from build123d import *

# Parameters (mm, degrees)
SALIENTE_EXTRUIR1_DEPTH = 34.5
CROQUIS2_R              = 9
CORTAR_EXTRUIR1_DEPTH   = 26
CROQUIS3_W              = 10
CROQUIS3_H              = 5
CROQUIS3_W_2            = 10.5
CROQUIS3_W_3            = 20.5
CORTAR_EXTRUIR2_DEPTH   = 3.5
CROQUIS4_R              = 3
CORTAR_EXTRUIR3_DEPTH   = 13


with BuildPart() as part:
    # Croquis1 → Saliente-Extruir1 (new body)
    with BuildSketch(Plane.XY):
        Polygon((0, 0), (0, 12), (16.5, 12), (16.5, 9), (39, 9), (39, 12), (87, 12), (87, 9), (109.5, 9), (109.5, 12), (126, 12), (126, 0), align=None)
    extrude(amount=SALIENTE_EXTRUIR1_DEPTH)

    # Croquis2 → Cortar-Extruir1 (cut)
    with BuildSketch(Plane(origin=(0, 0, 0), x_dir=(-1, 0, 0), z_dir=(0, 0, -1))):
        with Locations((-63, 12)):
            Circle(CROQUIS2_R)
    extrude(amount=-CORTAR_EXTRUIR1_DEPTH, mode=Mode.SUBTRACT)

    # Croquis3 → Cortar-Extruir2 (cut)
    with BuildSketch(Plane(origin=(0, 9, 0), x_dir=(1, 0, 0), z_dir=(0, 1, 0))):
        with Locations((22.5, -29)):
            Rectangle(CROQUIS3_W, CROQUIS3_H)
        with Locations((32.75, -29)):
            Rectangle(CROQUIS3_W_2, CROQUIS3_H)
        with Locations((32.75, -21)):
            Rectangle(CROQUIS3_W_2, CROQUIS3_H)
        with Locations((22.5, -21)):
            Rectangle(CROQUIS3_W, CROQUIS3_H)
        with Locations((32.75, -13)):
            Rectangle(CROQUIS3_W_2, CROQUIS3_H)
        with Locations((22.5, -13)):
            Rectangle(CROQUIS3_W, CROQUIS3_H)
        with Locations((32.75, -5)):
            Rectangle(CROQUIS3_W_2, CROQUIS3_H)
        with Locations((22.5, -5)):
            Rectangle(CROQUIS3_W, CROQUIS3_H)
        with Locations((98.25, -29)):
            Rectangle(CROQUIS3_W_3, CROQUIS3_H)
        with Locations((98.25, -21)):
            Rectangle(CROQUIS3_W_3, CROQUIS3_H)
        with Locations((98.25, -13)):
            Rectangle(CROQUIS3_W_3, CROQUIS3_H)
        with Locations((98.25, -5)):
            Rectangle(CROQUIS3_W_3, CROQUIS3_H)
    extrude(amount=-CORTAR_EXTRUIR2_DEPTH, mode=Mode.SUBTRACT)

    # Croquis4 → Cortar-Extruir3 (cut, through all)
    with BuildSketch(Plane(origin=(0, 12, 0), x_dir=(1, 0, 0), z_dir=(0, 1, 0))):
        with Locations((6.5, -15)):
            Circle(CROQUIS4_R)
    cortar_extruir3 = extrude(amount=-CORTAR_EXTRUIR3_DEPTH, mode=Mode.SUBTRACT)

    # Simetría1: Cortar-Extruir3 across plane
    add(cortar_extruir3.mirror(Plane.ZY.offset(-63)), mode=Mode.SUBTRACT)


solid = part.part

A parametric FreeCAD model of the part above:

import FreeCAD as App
import Part
import Sketcher

V = App.Vector
Q = App.Units.Quantity

doc = App.newDocument("Part")
body = doc.addObject("PartDesign::Body", "Body")

# Sketch on XY plane
sketch1 = body.newObject("Sketcher::SketchObject", "Sketch")
sketch1.AttachmentSupport = (doc.getObject("XY_Plane"), [""])
sketch1.MapMode = "FlatFace"
sketch1.addGeometry(Part.LineSegment(V(0, 12, 0), V(0, 0, 0)), False)
sketch1.addGeometry(Part.LineSegment(V(0, 0, 0), V(126, 0, 0)), False)
sketch1.addGeometry(Part.LineSegment(V(126, 0, 0), V(126, 12, 0)), False)
sketch1.addGeometry(Part.LineSegment(V(126, 12, 0), V(109.5, 12, 0)), False)
sketch1.addGeometry(Part.LineSegment(V(109.5, 12, 0), V(109.5, 9, 0)), False)
sketch1.addGeometry(Part.LineSegment(V(109.5, 9, 0), V(87, 9, 0)), False)
sketch1.addGeometry(Part.LineSegment(V(87, 9, 0), V(87, 12, 0)), False)
sketch1.addGeometry(Part.LineSegment(V(87, 12, 0), V(39, 12, 0)), False)
sketch1.addGeometry(Part.LineSegment(V(39, 12, 0), V(39, 9, 0)), False)
sketch1.addGeometry(Part.LineSegment(V(39, 9, 0), V(16.5, 9, 0)), False)
sketch1.addGeometry(Part.LineSegment(V(16.5, 9, 0), V(16.5, 12, 0)), False)
sketch1.addGeometry(Part.LineSegment(V(16.5, 12, 0), V(0, 12, 0)), False)
sketch1.addConstraint(Sketcher.Constraint("Coincident", 0, 2, 1, 1))
sketch1.addConstraint(Sketcher.Constraint("Coincident", 1, 2, 2, 1))
sketch1.addConstraint(Sketcher.Constraint("Coincident", 2, 2, 3, 1))
sketch1.addConstraint(Sketcher.Constraint("Coincident", 3, 2, 4, 1))
sketch1.addConstraint(Sketcher.Constraint("Coincident", 4, 2, 5, 1))
sketch1.addConstraint(Sketcher.Constraint("Coincident", 5, 2, 6, 1))
sketch1.addConstraint(Sketcher.Constraint("Coincident", 6, 2, 7, 1))
sketch1.addConstraint(Sketcher.Constraint("Coincident", 7, 2, 8, 1))
sketch1.addConstraint(Sketcher.Constraint("Coincident", 8, 2, 9, 1))
sketch1.addConstraint(Sketcher.Constraint("Coincident", 9, 2, 10, 1))
sketch1.addConstraint(Sketcher.Constraint("Coincident", 10, 2, 11, 1))
sketch1.addConstraint(Sketcher.Constraint("Coincident", 11, 2, 0, 1))
sketch1.addConstraint(Sketcher.Constraint("Vertical", 0))
sketch1.addConstraint(Sketcher.Constraint("Horizontal", 1))
sketch1.addConstraint(Sketcher.Constraint("Vertical", 2))
sketch1.addConstraint(Sketcher.Constraint("Horizontal", 3))
sketch1.addConstraint(Sketcher.Constraint("Vertical", 4))
sketch1.addConstraint(Sketcher.Constraint("Horizontal", 5))
sketch1.addConstraint(Sketcher.Constraint("Vertical", 6))
sketch1.addConstraint(Sketcher.Constraint("Horizontal", 7))
sketch1.addConstraint(Sketcher.Constraint("Vertical", 8))
sketch1.addConstraint(Sketcher.Constraint("Horizontal", 9))
sketch1.addConstraint(Sketcher.Constraint("Vertical", 10))
sketch1.addConstraint(Sketcher.Constraint("Horizontal", 11))
sketch1.addConstraint(Sketcher.Constraint("Coincident", 0, 2, -1, 1))
sketch1.addConstraint(Sketcher.Constraint("Horizontal", 3, 2, 6, 2))
sketch1.addConstraint(Sketcher.Constraint("Horizontal", 5, 2, 8, 2))
sketch1.addConstraint(Sketcher.Constraint("Horizontal", 7, 2, 10, 2))
sketch1.addConstraint(Sketcher.Constraint("Equal", 5, 9))
sketch1.addConstraint(Sketcher.Constraint("Equal", 3, 11))
sketch1.addConstraint(Sketcher.Constraint("DistanceX", 1, 1, 1, 2, Q("126 mm")))
sketch1.addConstraint(Sketcher.Constraint("DistanceX", 7, 2, 7, 1, Q("48 mm")))
sketch1.addConstraint(Sketcher.Constraint("DistanceY", 0, 2, 0, 1, Q("12 mm")))
sketch1.addConstraint(Sketcher.Constraint("DistanceY", 4, 2, 4, 1, Q("3 mm")))
sketch1.addConstraint(Sketcher.Constraint("DistanceX", 3, 2, 3, 1, Q("16.5 mm")))
pad1 = body.newObject("PartDesign::Pad", "Pad")
pad1.Profile = sketch1
pad1.Length = 34.5

# Sketch on XY plane
sketch2 = body.newObject("Sketcher::SketchObject", "Sketch001")
sketch2.AttachmentSupport = (doc.getObject("XY_Plane"), [""])
sketch2.MapMode = "FlatFace"
sketch2.addGeometry(Part.Circle(V(63, 12, 0), V(0, 0, 1), 9), False)
sketch2.addConstraint(Sketcher.Constraint("Diameter", 0, Q("18 mm")))
sketch2.addConstraint(Sketcher.Constraint("DistanceX", -1, 1, 0, 3, Q("63 mm")))
sketch2.addConstraint(Sketcher.Constraint("DistanceY", -1, 1, 0, 3, Q("12 mm")))
pocket1 = body.newObject("PartDesign::Pocket", "Pocket")
pocket1.Profile = sketch2
pocket1.Length = 26
pocket1.Reversed = True

# Sketch on XZ plane
sketch3 = body.newObject("Sketcher::SketchObject", "Sketch002")
sketch3.AttachmentSupport = (doc.getObject("XZ_Plane"), [""])
sketch3.MapMode = "FlatFace"
sketch3.AttachmentOffset = App.Placement(V(0, 0, -9), App.Rotation())
sketch3.addGeometry(Part.LineSegment(V(18, 26, 0), V(18, 32, 0)), False)
sketch3.addGeometry(Part.LineSegment(V(18, 32, 0), V(38, 32, 0)), False)
sketch3.addGeometry(Part.LineSegment(V(38, 32, 0), V(38, 26, 0)), False)
sketch3.addGeometry(Part.LineSegment(V(38, 26, 0), V(18, 26, 0)), False)
sketch3.addGeometry(Part.LineSegment(V(38, 24, 0), V(38, 18, 0)), False)
sketch3.addGeometry(Part.LineSegment(V(38, 18, 0), V(18, 18, 0)), False)
sketch3.addGeometry(Part.LineSegment(V(18, 18, 0), V(18, 24, 0)), False)
sketch3.addGeometry(Part.LineSegment(V(18, 24, 0), V(38, 24, 0)), False)
sketch3.addGeometry(Part.LineSegment(V(38, 16, 0), V(38, 10, 0)), False)
sketch3.addGeometry(Part.LineSegment(V(38, 10, 0), V(18, 10, 0)), False)
sketch3.addGeometry(Part.LineSegment(V(18, 10, 0), V(18, 16, 0)), False)
sketch3.addGeometry(Part.LineSegment(V(18, 16, 0), V(38, 16, 0)), False)
sketch3.addGeometry(Part.LineSegment(V(38, 8, 0), V(38, 2, 0)), False)
sketch3.addGeometry(Part.LineSegment(V(38, 2, 0), V(18, 2, 0)), False)
sketch3.addGeometry(Part.LineSegment(V(18, 2, 0), V(18, 8, 0)), False)
sketch3.addGeometry(Part.LineSegment(V(18, 8, 0), V(38, 8, 0)), False)
sketch3.addGeometry(Part.LineSegment(V(88, 26, 0), V(88, 32, 0)), False)
sketch3.addGeometry(Part.LineSegment(V(88, 32, 0), V(108, 32, 0)), False)
sketch3.addGeometry(Part.LineSegment(V(108, 32, 0), V(108, 26, 0)), False)
sketch3.addGeometry(Part.LineSegment(V(108, 26, 0), V(88, 26, 0)), False)
sketch3.addGeometry(Part.LineSegment(V(88, 18, 0), V(88, 24, 0)), False)
sketch3.addGeometry(Part.LineSegment(V(88, 24, 0), V(108, 24, 0)), False)
sketch3.addGeometry(Part.LineSegment(V(108, 24, 0), V(108, 18, 0)), False)
sketch3.addGeometry(Part.LineSegment(V(108, 18, 0), V(88, 18, 0)), False)
sketch3.addGeometry(Part.LineSegment(V(88, 10, 0), V(88, 16, 0)), False)
sketch3.addGeometry(Part.LineSegment(V(88, 16, 0), V(108, 16, 0)), False)
sketch3.addGeometry(Part.LineSegment(V(108, 16, 0), V(108, 10, 0)), False)
sketch3.addGeometry(Part.LineSegment(V(108, 10, 0), V(88, 10, 0)), False)
sketch3.addGeometry(Part.LineSegment(V(88, 2, 0), V(88, 8, 0)), False)
sketch3.addGeometry(Part.LineSegment(V(88, 8, 0), V(108, 8, 0)), False)
sketch3.addGeometry(Part.LineSegment(V(108, 8, 0), V(108, 2, 0)), False)
sketch3.addGeometry(Part.LineSegment(V(108, 2, 0), V(88, 2, 0)), False)
sketch3.addConstraint(Sketcher.Constraint("Coincident", 0, 2, 1, 1))
sketch3.addConstraint(Sketcher.Constraint("Coincident", 1, 2, 2, 1))
sketch3.addConstraint(Sketcher.Constraint("Coincident", 2, 2, 3, 1))
sketch3.addConstraint(Sketcher.Constraint("Coincident", 3, 2, 0, 1))
sketch3.addConstraint(Sketcher.Constraint("Coincident", 4, 2, 5, 1))
sketch3.addConstraint(Sketcher.Constraint("Coincident", 5, 2, 6, 1))
sketch3.addConstraint(Sketcher.Constraint("Coincident", 6, 2, 7, 1))
sketch3.addConstraint(Sketcher.Constraint("Coincident", 7, 2, 4, 1))
sketch3.addConstraint(Sketcher.Constraint("Coincident", 8, 2, 9, 1))
sketch3.addConstraint(Sketcher.Constraint("Coincident", 9, 2, 10, 1))
sketch3.addConstraint(Sketcher.Constraint("Coincident", 10, 2, 11, 1))
sketch3.addConstraint(Sketcher.Constraint("Coincident", 11, 2, 8, 1))
sketch3.addConstraint(Sketcher.Constraint("Coincident", 12, 2, 13, 1))
sketch3.addConstraint(Sketcher.Constraint("Coincident", 13, 2, 14, 1))
sketch3.addConstraint(Sketcher.Constraint("Coincident", 14, 2, 15, 1))
sketch3.addConstraint(Sketcher.Constraint("Coincident", 15, 2, 12, 1))
sketch3.addConstraint(Sketcher.Constraint("Coincident", 16, 2, 17, 1))
sketch3.addConstraint(Sketcher.Constraint("Coincident", 17, 2, 18, 1))
sketch3.addConstraint(Sketcher.Constraint("Coincident", 18, 2, 19, 1))
sketch3.addConstraint(Sketcher.Constraint("Coincident", 19, 2, 16, 1))
sketch3.addConstraint(Sketcher.Constraint("Coincident", 20, 2, 21, 1))
sketch3.addConstraint(Sketcher.Constraint("Coincident", 21, 2, 22, 1))
sketch3.addConstraint(Sketcher.Constraint("Coincident", 22, 2, 23, 1))
sketch3.addConstraint(Sketcher.Constraint("Coincident", 23, 2, 20, 1))
sketch3.addConstraint(Sketcher.Constraint("Coincident", 24, 2, 25, 1))
sketch3.addConstraint(Sketcher.Constraint("Coincident", 25, 2, 26, 1))
sketch3.addConstraint(Sketcher.Constraint("Coincident", 26, 2, 27, 1))
sketch3.addConstraint(Sketcher.Constraint("Coincident", 27, 2, 24, 1))
sketch3.addConstraint(Sketcher.Constraint("Coincident", 28, 2, 29, 1))
sketch3.addConstraint(Sketcher.Constraint("Coincident", 29, 2, 30, 1))
sketch3.addConstraint(Sketcher.Constraint("Coincident", 30, 2, 31, 1))
sketch3.addConstraint(Sketcher.Constraint("Coincident", 31, 2, 28, 1))
sketch3.addConstraint(Sketcher.Constraint("Vertical", 0))
sketch3.addConstraint(Sketcher.Constraint("Horizontal", 1))
sketch3.addConstraint(Sketcher.Constraint("Vertical", 2))
sketch3.addConstraint(Sketcher.Constraint("Horizontal", 3))
sketch3.addConstraint(Sketcher.Constraint("Vertical", 4))
sketch3.addConstraint(Sketcher.Constraint("Horizontal", 5))
sketch3.addConstraint(Sketcher.Constraint("Vertical", 6))
sketch3.addConstraint(Sketcher.Constraint("Horizontal", 7))
sketch3.addConstraint(Sketcher.Constraint("Vertical", 8))
sketch3.addConstraint(Sketcher.Constraint("Horizontal", 9))
sketch3.addConstraint(Sketcher.Constraint("Vertical", 10))
sketch3.addConstraint(Sketcher.Constraint("Horizontal", 11))
sketch3.addConstraint(Sketcher.Constraint("Vertical", 12))
sketch3.addConstraint(Sketcher.Constraint("Horizontal", 13))
sketch3.addConstraint(Sketcher.Constraint("Vertical", 14))
sketch3.addConstraint(Sketcher.Constraint("Horizontal", 15))
sketch3.addConstraint(Sketcher.Constraint("Vertical", 16))
sketch3.addConstraint(Sketcher.Constraint("Horizontal", 17))
sketch3.addConstraint(Sketcher.Constraint("Vertical", 18))
sketch3.addConstraint(Sketcher.Constraint("Horizontal", 19))
sketch3.addConstraint(Sketcher.Constraint("Vertical", 20))
sketch3.addConstraint(Sketcher.Constraint("Horizontal", 21))
sketch3.addConstraint(Sketcher.Constraint("Vertical", 22))
sketch3.addConstraint(Sketcher.Constraint("Horizontal", 23))
sketch3.addConstraint(Sketcher.Constraint("Vertical", 24))
sketch3.addConstraint(Sketcher.Constraint("Horizontal", 25))
sketch3.addConstraint(Sketcher.Constraint("Vertical", 26))
sketch3.addConstraint(Sketcher.Constraint("Horizontal", 27))
sketch3.addConstraint(Sketcher.Constraint("Vertical", 28))
sketch3.addConstraint(Sketcher.Constraint("Horizontal", 29))
sketch3.addConstraint(Sketcher.Constraint("Vertical", 30))
sketch3.addConstraint(Sketcher.Constraint("Horizontal", 31))
sketch3.addConstraint(Sketcher.Constraint("Horizontal", 1, 2, 16, 2))
sketch3.addConstraint(Sketcher.Constraint("Horizontal", 3, 2, 18, 2))
sketch3.addConstraint(Sketcher.Constraint("Horizontal", 7, 2, 20, 2))
sketch3.addConstraint(Sketcher.Constraint("Horizontal", 5, 2, 22, 2))
sketch3.addConstraint(Sketcher.Constraint("Horizontal", 11, 2, 24, 2))
sketch3.addConstraint(Sketcher.Constraint("Horizontal", 9, 2, 26, 2))
sketch3.addConstraint(Sketcher.Constraint("Horizontal", 15, 2, 28, 2))
sketch3.addConstraint(Sketcher.Constraint("Horizontal", 13, 2, 30, 2))
sketch3.addConstraint(Sketcher.Constraint("Vertical", 2, 2, 4, 2))
sketch3.addConstraint(Sketcher.Constraint("Vertical", 3, 2, 5, 2))
sketch3.addConstraint(Sketcher.Constraint("Vertical", 7, 2, 8, 2))
sketch3.addConstraint(Sketcher.Constraint("Vertical", 6, 2, 9, 2))
sketch3.addConstraint(Sketcher.Constraint("Vertical", 11, 2, 12, 2))
sketch3.addConstraint(Sketcher.Constraint("Vertical", 10, 2, 13, 2))
sketch3.addConstraint(Sketcher.Constraint("Vertical", 19, 2, 20, 2))
sketch3.addConstraint(Sketcher.Constraint("Vertical", 18, 2, 21, 2))
sketch3.addConstraint(Sketcher.Constraint("Vertical", 23, 2, 24, 2))
sketch3.addConstraint(Sketcher.Constraint("Vertical", 22, 2, 25, 2))
sketch3.addConstraint(Sketcher.Constraint("Vertical", 27, 2, 28, 2))
sketch3.addConstraint(Sketcher.Constraint("Vertical", 26, 2, 29, 2))
sketch3.addConstraint(Sketcher.Constraint("Equal", 15, 17))
sketch3.addConstraint(Sketcher.Constraint("Equal", 2, 4))
sketch3.addConstraint(Sketcher.Constraint("Equal", 6, 8))
sketch3.addConstraint(Sketcher.Constraint("Equal", 10, 12))
sketch3.addConstraint(Sketcher.Constraint("DistanceY", 0, 1, 0, 2, Q("5 mm")))
sketch3.addConstraint(Sketcher.Constraint("DistanceX", 1, 1, 1, 2, Q("20.5 mm")))
sketch3.addConstraint(Sketcher.Constraint("DistanceX", -1, 1, 1, 2, Q("38 mm")))
sketch3.addConstraint(Sketcher.Constraint("DistanceX", -1, 1, 16, 2, Q("88 mm")))
sketch3.addConstraint(Sketcher.Constraint("DistanceY", 4, 2, 2, 2, Q("8 mm")))
sketch3.addConstraint(Sketcher.Constraint("DistanceY", 8, 2, 4, 2, Q("8 mm")))
sketch3.addConstraint(Sketcher.Constraint("DistanceY", 12, 2, 8, 2, Q("8 mm")))
sketch3.addConstraint(Sketcher.Constraint("DistanceY", -1, 1, 0, 2, Q("31.5 mm")))
pocket2 = body.newObject("PartDesign::Pocket", "Pocket001")
pocket2.Profile = sketch3
pocket2.Length = 3.5
pocket2.Reversed = True

# Sketch on XZ plane
sketch4 = body.newObject("Sketcher::SketchObject", "Sketch003")
sketch4.AttachmentSupport = (doc.getObject("XZ_Plane"), [""])
sketch4.MapMode = "FlatFace"
sketch4.AttachmentOffset = App.Placement(V(0, 0, -12), App.Rotation())
sketch4.addGeometry(Part.Circle(V(6.5, 15, 0), V(0, 0, 1), 3), False)
sketch4.addConstraint(Sketcher.Constraint("Diameter", 0, Q("6 mm")))
sketch4.addConstraint(Sketcher.Constraint("DistanceY", -1, 1, 0, 3, Q("15 mm")))
sketch4.addConstraint(Sketcher.Constraint("DistanceX", -1, 1, 0, 3, Q("6.5 mm")))
pocket3 = body.newObject("PartDesign::Pocket", "Pocket002")
pocket3.Profile = sketch4
pocket3.Type = "ThroughAll"
pocket3.Reversed = True
doc.recompute()

datumplane = body.newObject("PartDesign::Plane", "DatumPlane")
datumplane.AttachmentSupport = (doc.getObject("YZ_Plane"), [""])
datumplane.MapMode = "FlatFace"
datumplane.AttachmentOffset = App.Placement(V(0, 0, 63), App.Rotation())
mirrored = body.newObject("PartDesign::Mirrored", "Mirrored")
mirrored.Originals = [pocket3]
mirrored.MirrorPlane = (datumplane, [""])
body.Tip = mirrored

doc.recompute()
